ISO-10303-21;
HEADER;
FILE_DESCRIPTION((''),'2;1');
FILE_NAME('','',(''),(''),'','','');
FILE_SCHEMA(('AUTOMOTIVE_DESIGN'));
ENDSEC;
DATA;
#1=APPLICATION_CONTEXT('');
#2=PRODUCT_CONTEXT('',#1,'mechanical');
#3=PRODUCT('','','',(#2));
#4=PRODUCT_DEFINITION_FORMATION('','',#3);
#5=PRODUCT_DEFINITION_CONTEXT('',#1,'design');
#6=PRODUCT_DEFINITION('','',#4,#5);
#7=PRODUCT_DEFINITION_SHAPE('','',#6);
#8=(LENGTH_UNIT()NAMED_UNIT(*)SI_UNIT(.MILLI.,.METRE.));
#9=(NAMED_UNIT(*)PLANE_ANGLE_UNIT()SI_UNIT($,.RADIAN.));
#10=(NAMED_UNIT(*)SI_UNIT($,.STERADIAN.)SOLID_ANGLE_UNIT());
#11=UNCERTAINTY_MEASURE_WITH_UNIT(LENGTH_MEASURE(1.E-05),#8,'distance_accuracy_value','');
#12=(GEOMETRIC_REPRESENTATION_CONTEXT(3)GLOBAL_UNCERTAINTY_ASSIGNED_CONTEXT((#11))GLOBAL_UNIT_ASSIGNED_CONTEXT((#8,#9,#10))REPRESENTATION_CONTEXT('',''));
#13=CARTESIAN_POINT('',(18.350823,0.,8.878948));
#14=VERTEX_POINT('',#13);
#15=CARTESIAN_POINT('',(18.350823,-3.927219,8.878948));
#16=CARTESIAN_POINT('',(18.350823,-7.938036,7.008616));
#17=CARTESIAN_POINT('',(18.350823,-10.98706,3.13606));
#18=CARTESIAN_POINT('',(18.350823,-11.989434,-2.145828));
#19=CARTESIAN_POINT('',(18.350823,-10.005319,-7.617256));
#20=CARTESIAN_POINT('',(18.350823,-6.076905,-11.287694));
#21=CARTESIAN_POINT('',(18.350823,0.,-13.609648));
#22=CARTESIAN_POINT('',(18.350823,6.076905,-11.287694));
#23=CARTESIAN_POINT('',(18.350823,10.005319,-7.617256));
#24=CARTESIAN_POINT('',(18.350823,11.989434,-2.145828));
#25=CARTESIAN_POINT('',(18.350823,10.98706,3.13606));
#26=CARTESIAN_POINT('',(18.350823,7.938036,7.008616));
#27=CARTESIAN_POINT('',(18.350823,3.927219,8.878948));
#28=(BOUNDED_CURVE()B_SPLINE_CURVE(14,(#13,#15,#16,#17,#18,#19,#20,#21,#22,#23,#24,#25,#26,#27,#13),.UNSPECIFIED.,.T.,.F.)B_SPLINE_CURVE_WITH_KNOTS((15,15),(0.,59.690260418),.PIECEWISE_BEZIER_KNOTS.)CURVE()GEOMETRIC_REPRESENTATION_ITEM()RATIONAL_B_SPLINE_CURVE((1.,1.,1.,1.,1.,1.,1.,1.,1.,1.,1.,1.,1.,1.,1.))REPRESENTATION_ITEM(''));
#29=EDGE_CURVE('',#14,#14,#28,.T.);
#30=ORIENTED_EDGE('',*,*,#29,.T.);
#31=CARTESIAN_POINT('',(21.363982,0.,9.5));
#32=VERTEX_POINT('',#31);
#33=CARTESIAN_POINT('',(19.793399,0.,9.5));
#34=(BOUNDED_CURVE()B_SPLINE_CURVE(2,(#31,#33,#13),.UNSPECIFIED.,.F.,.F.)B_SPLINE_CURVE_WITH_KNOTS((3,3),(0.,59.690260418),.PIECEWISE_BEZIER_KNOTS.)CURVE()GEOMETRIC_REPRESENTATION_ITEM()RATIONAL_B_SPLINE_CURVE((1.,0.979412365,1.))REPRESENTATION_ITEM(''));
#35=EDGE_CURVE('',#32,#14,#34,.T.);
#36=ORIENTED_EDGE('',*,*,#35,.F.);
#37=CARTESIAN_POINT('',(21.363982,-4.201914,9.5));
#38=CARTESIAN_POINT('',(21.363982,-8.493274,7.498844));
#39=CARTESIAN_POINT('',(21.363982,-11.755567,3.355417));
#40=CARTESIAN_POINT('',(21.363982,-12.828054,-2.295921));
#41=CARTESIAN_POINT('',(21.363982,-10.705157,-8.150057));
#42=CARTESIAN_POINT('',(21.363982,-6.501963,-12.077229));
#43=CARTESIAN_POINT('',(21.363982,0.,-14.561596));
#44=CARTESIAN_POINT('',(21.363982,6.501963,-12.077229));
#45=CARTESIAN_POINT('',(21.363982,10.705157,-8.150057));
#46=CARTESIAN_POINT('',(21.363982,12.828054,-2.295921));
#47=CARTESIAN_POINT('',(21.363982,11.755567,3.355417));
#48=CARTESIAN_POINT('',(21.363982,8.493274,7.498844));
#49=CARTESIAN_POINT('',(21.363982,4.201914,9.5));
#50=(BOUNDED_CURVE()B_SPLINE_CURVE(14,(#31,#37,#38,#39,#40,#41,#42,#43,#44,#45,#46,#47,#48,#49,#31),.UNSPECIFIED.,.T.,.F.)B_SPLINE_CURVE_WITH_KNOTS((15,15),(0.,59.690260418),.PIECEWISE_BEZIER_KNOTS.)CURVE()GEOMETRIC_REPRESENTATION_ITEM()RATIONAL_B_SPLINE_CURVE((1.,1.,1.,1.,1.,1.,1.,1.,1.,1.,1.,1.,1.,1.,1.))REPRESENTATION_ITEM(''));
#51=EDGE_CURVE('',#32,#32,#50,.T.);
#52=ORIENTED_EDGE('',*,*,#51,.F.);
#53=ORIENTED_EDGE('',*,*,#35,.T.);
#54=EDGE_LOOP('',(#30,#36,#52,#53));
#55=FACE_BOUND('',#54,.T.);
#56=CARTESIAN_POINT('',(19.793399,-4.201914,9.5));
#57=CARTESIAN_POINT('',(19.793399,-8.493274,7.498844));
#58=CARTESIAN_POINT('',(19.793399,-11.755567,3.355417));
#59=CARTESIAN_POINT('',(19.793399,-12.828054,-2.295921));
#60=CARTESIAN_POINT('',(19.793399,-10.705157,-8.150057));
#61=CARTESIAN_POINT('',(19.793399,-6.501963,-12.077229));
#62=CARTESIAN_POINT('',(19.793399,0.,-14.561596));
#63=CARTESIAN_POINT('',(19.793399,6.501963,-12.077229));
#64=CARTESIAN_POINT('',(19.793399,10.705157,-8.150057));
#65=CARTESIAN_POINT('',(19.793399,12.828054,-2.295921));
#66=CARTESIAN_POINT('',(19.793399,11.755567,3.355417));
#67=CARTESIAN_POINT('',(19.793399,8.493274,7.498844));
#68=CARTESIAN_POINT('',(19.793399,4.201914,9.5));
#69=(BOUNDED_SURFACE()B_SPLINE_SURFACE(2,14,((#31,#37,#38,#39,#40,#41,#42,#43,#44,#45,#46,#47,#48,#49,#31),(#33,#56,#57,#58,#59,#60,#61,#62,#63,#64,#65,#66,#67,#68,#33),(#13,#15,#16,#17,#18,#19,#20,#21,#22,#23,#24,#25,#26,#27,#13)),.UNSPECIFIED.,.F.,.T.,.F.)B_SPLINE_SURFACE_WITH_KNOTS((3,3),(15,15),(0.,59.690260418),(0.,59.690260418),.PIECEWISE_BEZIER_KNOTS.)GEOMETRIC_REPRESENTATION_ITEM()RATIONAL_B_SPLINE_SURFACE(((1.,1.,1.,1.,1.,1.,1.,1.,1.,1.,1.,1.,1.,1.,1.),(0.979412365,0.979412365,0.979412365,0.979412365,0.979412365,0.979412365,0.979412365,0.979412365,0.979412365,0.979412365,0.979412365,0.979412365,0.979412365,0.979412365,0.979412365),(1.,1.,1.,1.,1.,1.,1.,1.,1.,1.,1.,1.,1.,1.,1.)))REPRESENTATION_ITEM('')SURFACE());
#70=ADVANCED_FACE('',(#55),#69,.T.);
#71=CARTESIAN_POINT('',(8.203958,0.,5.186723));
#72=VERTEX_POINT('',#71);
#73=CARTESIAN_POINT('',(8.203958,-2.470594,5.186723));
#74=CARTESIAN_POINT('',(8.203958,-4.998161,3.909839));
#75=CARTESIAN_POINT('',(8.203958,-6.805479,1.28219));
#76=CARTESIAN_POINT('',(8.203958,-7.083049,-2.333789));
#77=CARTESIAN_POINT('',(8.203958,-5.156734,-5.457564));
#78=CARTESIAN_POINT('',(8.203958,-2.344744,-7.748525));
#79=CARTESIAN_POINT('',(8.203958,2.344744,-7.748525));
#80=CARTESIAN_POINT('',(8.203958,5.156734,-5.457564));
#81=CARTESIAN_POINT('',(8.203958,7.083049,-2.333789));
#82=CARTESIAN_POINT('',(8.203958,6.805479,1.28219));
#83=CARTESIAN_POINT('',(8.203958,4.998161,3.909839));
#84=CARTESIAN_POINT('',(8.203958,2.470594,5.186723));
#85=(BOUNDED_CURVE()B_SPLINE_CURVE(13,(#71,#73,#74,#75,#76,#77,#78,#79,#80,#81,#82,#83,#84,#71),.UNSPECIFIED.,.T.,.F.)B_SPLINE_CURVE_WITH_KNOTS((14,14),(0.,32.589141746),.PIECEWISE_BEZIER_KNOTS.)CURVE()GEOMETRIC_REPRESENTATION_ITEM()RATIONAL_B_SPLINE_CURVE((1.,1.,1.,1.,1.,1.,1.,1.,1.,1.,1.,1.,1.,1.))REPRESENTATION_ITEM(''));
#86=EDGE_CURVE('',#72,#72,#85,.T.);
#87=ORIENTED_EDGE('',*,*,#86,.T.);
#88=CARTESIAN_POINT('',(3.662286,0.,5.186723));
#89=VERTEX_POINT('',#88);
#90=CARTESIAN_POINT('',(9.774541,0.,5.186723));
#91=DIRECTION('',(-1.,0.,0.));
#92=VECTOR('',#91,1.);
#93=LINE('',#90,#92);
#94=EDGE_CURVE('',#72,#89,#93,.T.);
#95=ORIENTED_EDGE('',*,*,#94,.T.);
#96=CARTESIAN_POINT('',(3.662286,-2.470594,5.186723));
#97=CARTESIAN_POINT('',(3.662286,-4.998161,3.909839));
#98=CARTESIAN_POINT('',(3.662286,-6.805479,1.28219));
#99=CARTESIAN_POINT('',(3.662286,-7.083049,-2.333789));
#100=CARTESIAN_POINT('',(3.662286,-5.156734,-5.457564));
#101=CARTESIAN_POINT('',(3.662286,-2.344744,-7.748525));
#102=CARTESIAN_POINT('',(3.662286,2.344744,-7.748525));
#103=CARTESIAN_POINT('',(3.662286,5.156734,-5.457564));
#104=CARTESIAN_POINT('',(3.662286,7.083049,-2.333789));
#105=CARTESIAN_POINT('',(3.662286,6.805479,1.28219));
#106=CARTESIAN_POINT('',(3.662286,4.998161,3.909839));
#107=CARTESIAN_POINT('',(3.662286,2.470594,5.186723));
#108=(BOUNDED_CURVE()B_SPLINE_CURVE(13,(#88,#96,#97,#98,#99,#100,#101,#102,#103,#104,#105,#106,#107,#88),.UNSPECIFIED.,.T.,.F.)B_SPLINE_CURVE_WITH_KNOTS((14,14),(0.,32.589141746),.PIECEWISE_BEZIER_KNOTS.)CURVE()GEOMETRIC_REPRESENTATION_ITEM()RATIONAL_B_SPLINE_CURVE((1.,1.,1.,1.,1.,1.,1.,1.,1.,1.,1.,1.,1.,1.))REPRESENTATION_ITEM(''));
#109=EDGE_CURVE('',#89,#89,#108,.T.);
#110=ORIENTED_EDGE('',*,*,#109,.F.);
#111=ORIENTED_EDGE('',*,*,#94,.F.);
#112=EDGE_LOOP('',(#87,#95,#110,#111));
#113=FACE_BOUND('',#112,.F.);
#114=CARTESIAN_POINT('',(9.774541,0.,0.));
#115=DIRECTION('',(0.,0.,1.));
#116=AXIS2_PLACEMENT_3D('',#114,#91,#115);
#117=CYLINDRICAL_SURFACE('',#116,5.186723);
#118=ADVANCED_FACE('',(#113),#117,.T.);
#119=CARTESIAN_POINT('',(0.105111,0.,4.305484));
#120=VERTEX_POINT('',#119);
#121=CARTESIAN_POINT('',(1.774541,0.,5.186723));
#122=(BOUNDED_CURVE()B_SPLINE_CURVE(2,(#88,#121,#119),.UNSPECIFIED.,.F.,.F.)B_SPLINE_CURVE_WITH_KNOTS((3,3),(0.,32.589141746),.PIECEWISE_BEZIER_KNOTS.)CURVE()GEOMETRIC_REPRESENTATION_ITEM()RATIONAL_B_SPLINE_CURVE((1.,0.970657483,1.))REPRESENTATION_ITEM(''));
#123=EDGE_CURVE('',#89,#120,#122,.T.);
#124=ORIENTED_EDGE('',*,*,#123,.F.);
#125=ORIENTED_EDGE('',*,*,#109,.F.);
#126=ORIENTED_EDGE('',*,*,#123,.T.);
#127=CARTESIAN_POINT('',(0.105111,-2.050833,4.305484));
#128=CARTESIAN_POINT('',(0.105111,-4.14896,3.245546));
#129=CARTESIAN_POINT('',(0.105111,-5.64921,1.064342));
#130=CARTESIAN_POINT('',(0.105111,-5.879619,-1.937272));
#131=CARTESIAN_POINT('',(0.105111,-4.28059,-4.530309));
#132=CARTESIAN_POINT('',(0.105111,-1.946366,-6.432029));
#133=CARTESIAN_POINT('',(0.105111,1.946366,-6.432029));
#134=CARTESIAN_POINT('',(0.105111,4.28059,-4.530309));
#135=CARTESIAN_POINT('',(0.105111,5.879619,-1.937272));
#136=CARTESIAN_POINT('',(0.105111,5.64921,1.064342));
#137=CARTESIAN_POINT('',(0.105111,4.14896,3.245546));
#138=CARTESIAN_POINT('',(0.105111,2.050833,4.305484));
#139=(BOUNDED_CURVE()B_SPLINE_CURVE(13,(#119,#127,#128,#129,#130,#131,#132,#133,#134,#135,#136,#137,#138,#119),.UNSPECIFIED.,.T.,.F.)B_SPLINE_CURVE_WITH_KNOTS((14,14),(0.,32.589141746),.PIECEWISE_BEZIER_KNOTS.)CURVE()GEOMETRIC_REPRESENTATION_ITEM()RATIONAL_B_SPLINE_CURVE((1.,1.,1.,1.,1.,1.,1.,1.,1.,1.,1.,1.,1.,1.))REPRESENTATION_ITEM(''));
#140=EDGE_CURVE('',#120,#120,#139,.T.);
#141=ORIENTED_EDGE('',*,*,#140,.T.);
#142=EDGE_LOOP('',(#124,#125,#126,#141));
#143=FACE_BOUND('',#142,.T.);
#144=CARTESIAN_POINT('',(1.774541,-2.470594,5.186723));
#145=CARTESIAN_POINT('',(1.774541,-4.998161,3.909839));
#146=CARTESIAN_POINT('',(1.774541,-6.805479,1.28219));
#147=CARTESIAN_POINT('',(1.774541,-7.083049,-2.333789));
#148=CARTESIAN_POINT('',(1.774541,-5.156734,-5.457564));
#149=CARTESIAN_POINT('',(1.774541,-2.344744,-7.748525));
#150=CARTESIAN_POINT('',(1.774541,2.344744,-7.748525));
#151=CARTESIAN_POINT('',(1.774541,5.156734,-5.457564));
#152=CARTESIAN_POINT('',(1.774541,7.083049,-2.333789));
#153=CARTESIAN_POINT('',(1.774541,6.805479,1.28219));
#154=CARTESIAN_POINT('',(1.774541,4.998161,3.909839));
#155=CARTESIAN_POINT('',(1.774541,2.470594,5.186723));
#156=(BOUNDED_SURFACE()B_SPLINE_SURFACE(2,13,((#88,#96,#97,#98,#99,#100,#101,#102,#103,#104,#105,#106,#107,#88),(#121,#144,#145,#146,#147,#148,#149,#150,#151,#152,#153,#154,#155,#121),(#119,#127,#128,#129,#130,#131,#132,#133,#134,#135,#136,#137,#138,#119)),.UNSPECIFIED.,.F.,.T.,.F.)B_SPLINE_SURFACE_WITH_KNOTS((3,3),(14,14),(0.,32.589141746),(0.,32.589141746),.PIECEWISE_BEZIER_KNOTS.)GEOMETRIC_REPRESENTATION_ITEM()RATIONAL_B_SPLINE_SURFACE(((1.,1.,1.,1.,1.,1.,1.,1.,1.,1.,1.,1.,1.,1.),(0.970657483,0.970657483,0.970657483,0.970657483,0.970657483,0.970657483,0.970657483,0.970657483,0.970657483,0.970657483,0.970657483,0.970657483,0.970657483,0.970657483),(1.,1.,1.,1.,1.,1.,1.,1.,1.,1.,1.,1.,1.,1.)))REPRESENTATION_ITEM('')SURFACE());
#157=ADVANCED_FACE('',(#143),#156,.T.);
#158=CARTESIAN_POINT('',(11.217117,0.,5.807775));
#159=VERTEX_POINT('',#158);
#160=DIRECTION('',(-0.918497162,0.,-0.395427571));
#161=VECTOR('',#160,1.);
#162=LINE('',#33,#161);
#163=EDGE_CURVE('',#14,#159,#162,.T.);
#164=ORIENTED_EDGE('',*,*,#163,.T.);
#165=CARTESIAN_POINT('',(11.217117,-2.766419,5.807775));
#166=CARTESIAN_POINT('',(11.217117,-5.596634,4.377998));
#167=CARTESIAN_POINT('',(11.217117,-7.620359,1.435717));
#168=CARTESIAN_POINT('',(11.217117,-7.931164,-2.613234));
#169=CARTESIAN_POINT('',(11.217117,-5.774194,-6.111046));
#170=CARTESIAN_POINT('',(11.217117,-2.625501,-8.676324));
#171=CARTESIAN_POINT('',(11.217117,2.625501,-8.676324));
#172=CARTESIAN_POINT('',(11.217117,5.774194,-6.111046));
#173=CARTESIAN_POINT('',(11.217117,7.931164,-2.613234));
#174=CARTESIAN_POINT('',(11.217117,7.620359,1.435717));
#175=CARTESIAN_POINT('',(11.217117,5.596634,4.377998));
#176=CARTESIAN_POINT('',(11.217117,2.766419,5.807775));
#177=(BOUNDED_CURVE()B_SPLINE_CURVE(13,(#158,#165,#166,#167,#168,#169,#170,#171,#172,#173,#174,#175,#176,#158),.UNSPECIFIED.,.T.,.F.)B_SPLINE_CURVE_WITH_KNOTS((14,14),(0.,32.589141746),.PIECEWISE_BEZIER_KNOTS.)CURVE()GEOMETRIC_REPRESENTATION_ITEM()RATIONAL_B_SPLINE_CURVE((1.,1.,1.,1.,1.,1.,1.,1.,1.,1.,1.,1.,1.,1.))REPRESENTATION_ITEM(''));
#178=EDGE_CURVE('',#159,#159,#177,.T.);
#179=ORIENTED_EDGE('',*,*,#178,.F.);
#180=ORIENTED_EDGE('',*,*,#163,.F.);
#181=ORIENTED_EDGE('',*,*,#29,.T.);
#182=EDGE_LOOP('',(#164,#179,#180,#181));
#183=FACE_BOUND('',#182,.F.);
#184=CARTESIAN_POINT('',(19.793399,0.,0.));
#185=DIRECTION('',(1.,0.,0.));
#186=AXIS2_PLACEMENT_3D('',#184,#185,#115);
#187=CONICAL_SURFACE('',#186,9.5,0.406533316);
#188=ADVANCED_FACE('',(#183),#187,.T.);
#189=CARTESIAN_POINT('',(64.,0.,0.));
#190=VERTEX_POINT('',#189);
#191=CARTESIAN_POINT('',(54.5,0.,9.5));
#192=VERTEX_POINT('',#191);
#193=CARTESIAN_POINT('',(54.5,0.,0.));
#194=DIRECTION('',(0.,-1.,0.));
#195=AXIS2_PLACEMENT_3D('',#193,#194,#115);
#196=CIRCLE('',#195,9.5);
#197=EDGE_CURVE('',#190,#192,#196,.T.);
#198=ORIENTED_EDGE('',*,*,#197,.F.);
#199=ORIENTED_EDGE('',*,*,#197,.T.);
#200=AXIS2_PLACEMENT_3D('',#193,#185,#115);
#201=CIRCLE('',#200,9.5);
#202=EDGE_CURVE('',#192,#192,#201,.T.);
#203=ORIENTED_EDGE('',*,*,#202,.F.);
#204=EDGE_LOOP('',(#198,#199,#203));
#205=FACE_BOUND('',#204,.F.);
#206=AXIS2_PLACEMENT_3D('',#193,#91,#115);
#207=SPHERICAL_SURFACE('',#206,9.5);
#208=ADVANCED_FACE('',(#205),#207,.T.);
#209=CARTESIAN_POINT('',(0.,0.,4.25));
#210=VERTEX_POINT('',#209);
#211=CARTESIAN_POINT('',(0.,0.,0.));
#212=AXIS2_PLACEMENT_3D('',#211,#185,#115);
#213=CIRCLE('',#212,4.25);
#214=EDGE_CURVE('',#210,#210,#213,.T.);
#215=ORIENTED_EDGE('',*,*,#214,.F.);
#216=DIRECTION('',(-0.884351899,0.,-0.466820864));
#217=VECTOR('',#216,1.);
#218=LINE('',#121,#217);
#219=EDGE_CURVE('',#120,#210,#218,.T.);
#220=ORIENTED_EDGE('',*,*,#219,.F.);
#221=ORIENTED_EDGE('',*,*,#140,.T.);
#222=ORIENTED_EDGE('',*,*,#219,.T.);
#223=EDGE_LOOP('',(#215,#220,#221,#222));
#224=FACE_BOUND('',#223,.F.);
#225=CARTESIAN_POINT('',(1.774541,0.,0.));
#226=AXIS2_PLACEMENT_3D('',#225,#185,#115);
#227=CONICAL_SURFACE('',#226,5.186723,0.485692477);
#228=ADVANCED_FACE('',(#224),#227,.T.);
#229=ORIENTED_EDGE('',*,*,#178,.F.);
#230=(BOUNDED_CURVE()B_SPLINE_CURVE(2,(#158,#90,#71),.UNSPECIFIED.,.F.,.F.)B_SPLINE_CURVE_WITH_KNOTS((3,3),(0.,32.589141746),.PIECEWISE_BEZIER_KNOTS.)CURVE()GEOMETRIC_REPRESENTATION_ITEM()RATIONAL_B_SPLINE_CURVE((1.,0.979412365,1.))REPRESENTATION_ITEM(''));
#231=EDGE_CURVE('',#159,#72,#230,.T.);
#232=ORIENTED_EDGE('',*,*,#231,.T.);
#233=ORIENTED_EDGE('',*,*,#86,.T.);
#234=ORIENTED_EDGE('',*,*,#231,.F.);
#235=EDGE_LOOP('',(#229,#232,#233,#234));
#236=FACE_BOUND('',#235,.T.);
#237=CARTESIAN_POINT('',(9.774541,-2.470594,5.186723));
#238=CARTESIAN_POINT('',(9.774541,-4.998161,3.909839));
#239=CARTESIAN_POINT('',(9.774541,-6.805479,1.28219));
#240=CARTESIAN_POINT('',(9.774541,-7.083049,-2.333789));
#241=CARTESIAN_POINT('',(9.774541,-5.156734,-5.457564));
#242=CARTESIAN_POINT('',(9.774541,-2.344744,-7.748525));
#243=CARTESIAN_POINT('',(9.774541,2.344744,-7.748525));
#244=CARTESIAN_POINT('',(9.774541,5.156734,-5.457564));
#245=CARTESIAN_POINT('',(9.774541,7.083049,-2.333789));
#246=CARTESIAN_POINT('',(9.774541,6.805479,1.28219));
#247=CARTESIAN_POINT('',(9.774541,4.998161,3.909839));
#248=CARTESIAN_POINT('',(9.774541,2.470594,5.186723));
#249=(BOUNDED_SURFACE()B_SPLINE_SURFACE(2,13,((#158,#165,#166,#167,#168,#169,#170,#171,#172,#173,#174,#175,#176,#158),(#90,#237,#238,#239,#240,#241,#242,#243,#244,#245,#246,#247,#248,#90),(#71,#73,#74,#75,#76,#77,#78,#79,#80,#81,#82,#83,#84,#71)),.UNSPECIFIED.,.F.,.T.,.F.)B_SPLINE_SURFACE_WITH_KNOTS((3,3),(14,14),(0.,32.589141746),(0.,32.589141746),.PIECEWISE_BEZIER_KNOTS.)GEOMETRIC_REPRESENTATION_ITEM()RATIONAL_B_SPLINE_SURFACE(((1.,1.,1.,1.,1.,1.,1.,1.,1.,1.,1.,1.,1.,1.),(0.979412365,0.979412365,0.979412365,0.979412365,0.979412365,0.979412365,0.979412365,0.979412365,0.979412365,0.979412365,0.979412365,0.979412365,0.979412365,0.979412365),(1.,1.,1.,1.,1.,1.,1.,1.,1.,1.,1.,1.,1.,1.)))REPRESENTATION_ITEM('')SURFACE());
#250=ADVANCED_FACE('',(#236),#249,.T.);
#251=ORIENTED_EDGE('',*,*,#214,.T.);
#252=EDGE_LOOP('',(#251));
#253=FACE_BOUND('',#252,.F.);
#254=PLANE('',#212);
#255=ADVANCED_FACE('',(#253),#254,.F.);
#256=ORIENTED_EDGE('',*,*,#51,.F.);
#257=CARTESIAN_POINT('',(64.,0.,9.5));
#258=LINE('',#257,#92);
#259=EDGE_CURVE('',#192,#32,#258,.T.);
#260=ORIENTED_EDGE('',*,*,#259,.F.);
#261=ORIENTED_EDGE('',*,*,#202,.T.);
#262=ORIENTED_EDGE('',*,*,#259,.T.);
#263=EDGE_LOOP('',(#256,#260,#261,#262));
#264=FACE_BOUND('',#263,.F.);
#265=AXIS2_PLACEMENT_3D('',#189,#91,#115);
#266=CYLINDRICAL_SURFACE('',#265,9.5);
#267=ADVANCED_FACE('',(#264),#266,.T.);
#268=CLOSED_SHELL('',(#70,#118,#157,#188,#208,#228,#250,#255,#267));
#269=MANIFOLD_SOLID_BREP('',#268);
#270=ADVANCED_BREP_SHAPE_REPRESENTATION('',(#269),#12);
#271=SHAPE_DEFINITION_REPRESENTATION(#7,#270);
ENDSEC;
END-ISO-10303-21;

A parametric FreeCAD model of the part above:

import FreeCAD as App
import Part
import Sketcher
from FreeCAD import Vector


def edges_at(feature, points):
    """Names of the edges that pass closest to the given points."""
    edges = feature.Shape.Edges
    near = lambda p: min(range(len(edges)), key=lambda i: edges[i].distToShape(Part.Vertex(*p))[0])
    return sorted({f"Edge{near(p) + 1}" for p in points})

doc = App.newDocument("Part")
body = doc.addObject("PartDesign::Body", "Body")

# Sketch on XZ plane
sketch1 = body.newObject("Sketcher::SketchObject", "Sketch")
sketch1.AttachmentSupport = (doc.getObject("XZ_Plane"), [""])
sketch1.MapMode = "FlatFace"
sketch1.addGeometry([
    Part.LineSegment(Vector(0, 4.2, 0), Vector(0, 0, 0)),  # 0
    Part.LineSegment(Vector(0, 0, 0), Vector(64, 0, 0)),  # 1
    Part.LineSegment(Vector(64, 0, 0), Vector(64, 9.5, 0)),  # 2
    Part.LineSegment(Vector(64, 9.5, 0), Vector(19.8, 9.5, 0)),  # 3
    Part.LineSegment(Vector(19.8, 9.5, 0), Vector(9.8, 5.2, 0)),  # 4
    Part.LineSegment(Vector(9.8, 5.2, 0), Vector(1.8, 5.2, 0)),  # 5
    Part.LineSegment(Vector(1.8, 5.2, 0), Vector(0, 4.2, 0)),  # 6
], False)
sketch1.addConstraint([
    Sketcher.Constraint("Coincident", 0, 2, 1, 1),
    Sketcher.Constraint("Coincident", 1, 2, 2, 1),
    Sketcher.Constraint("Coincident", 2, 2, 3, 1),
    Sketcher.Constraint("Coincident", 3, 2, 4, 1),
    Sketcher.Constraint("Coincident", 4, 2, 5, 1),
    Sketcher.Constraint("Coincident", 5, 2, 6, 1),
    Sketcher.Constraint("Coincident", 6, 2, 0, 1),
    Sketcher.Constraint("Vertical", 0),
    Sketcher.Constraint("Horizontal", 1),
    Sketcher.Constraint("Vertical", 2),
    Sketcher.Constraint("Horizontal", 3),
    Sketcher.Constraint("Horizontal", 5),
    Sketcher.Constraint("Coincident", 0, 2, -1, 1),
    Sketcher.Constraint("DistanceX", 1, 1, 1, 2, 64.0),
    Sketcher.Constraint("DistanceX", 5, 2, 5, 1, 8.0),
    Sketcher.Constraint("DistanceY", 2, 1, 2, 2, 9.5),
    Sketcher.Constraint("DistanceY", 0, 2, 0, 1, 4.25),
    Sketcher.Constraint("DistanceX", 3, 2, 3, 1, 44.206601),
    Sketcher.Constraint("Distance", 6, 2.006601),
    Sketcher.Constraint("Distance", 4, 10.907881),
])
revolution = body.newObject("PartDesign::Revolution", "Revolution")
revolution.Profile = sketch1
revolution.ReferenceAxis = (sketch1, ["H_Axis"])
revolution.Angle = 360
doc.recompute()

fillet = body.newObject("PartDesign::Fillet", "Fillet")
fillet.Base = (revolution, edges_at(revolution, [(64, 0, -9.5)]))
fillet.Radius = 9.5
doc.recompute()

fillet2 = body.newObject("PartDesign::Fillet", "Fillet001")
fillet2.Base = (fillet, edges_at(fillet, [(19.793, 0, -9.5), (1.775, 0, -5.187), (9.775, 0, -5.187)]))
fillet2.Radius = 7.62

doc.recompute()
